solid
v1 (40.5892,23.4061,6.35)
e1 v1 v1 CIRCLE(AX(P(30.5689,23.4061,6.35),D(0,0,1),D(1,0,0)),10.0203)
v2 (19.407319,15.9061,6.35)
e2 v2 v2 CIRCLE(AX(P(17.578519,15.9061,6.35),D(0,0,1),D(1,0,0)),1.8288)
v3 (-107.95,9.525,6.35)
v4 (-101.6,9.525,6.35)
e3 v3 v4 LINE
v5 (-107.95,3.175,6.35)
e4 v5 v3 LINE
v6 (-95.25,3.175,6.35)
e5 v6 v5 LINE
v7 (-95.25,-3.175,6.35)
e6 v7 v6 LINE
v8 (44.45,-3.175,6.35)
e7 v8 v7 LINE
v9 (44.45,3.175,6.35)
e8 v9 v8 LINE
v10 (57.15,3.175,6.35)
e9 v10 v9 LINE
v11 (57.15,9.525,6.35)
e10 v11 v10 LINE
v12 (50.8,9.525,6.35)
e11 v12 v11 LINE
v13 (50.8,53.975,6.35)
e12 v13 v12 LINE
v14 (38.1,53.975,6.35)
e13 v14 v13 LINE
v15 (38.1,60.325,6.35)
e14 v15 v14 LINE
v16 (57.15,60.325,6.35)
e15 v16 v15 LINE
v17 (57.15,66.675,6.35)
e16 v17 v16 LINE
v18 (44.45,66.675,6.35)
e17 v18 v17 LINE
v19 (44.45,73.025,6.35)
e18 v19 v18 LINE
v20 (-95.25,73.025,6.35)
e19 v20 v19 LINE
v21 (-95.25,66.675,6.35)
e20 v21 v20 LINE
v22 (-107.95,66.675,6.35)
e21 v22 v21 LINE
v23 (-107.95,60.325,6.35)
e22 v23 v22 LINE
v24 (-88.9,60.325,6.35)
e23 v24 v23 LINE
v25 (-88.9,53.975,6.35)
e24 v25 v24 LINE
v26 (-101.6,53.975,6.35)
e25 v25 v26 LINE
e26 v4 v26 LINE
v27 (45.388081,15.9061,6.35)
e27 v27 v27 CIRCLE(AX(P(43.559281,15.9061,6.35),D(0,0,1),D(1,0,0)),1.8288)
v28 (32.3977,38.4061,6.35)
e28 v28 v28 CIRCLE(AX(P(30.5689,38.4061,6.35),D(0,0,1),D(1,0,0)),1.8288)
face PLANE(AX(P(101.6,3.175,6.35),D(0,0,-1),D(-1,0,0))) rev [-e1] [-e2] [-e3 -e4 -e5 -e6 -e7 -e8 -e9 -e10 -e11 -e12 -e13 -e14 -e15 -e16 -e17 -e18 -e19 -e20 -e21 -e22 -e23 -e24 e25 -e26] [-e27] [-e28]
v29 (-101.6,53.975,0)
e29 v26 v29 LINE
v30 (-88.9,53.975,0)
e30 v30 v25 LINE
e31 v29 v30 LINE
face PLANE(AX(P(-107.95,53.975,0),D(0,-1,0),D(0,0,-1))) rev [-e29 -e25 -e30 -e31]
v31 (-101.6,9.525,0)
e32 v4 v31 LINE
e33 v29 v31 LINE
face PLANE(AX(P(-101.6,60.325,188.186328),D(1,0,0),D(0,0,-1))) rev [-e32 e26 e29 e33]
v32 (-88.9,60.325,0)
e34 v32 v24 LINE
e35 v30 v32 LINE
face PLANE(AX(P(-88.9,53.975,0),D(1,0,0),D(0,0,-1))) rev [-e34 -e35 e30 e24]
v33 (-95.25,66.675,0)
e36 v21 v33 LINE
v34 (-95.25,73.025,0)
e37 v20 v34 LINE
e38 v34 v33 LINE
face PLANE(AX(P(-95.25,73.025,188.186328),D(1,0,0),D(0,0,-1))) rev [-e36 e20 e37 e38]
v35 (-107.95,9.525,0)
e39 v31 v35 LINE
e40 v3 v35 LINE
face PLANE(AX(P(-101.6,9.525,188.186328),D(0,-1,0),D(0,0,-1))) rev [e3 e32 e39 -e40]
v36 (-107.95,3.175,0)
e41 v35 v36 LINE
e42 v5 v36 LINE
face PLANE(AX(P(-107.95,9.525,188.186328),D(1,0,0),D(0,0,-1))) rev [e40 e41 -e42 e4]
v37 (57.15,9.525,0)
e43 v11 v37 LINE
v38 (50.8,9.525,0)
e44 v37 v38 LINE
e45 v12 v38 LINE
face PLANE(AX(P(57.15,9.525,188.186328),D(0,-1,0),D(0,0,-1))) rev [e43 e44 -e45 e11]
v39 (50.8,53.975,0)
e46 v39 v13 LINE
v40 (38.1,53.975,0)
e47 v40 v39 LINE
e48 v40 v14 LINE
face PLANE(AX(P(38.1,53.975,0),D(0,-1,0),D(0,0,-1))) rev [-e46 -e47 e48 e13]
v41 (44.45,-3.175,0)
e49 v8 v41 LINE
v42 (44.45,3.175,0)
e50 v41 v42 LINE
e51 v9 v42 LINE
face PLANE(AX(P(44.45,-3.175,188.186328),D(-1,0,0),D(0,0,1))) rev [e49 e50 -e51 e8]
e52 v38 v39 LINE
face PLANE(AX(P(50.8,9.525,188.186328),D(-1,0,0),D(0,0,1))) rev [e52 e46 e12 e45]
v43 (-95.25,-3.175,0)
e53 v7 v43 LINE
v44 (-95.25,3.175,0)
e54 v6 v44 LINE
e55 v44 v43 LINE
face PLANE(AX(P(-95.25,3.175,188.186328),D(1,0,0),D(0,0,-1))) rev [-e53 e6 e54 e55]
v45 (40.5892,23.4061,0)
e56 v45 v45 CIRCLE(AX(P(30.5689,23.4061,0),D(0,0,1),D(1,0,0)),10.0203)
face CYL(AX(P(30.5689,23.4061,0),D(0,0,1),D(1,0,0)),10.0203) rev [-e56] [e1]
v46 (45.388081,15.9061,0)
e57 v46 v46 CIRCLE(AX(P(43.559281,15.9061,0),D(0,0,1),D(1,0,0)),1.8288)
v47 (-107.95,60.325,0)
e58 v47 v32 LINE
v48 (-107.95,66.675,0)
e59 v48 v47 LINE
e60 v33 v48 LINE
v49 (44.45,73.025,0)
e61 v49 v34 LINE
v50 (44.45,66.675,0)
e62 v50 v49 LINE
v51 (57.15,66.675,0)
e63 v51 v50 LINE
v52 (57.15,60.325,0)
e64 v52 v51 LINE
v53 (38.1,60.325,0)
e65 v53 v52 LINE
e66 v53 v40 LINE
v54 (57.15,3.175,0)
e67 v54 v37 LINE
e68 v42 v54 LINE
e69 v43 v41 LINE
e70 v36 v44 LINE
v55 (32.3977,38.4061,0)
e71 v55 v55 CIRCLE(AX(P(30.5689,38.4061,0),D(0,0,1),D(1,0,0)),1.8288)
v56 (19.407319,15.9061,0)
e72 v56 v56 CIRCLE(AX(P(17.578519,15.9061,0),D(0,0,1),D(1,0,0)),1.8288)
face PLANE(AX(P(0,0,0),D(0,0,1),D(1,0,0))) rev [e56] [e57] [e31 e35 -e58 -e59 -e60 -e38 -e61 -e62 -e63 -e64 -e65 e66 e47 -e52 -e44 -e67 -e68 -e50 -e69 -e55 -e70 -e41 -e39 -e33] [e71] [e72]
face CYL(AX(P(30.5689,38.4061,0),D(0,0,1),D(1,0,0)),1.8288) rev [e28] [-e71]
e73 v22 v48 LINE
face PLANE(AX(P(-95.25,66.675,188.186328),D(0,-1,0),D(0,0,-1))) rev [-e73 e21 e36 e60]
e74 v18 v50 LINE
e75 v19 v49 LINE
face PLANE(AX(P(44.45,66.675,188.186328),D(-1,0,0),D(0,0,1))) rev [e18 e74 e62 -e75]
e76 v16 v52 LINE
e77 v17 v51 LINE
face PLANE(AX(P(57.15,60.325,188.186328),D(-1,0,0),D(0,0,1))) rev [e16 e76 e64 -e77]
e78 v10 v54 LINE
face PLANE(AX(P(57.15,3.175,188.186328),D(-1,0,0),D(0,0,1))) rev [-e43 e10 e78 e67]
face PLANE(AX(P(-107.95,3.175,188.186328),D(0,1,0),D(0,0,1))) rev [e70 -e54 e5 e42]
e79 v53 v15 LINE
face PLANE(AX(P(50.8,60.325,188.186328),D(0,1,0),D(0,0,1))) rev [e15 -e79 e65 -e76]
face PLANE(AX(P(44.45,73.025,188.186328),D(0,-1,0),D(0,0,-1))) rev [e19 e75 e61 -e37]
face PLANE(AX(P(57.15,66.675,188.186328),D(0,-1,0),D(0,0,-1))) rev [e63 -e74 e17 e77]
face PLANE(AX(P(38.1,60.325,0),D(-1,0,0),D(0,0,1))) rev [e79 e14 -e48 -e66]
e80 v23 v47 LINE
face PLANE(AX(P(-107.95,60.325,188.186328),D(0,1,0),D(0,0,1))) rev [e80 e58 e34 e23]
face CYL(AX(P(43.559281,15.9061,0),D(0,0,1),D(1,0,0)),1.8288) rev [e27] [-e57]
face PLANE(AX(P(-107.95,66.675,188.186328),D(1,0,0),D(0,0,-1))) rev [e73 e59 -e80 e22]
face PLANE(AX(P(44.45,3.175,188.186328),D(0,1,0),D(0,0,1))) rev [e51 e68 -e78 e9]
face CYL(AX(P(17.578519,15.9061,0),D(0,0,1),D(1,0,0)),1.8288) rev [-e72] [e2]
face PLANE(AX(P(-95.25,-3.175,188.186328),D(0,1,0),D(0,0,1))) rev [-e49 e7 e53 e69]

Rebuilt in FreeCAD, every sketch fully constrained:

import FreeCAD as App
import Part
import Sketcher
from FreeCAD import Vector
Q = App.Units.Quantity

doc = App.newDocument("Part")
body = doc.addObject("PartDesign::Body", "Body")

sketch1 = doc.addObject("Sketcher::SketchObject", "Sketch")
body.addObject(sketch1)
sketch1.AttachmentSupport = (doc.XY_Plane, [""])
sketch1.MapMode = "FlatFace"
sketch1.addGeometry([
    Part.LineSegment(Vector(-95, -3, 0), Vector(44, -3, 0)),
    Part.LineSegment(Vector(44, -3, 0), Vector(44, 3, 0)),
    Part.LineSegment(Vector(44, 3, 0), Vector(57, 3, 0)),
    Part.LineSegment(Vector(57, 3, 0), Vector(57, 10, 0)),
    Part.LineSegment(Vector(57, 10, 0), Vector(51, 10, 0)),
    Part.LineSegment(Vector(51, 10, 0), Vector(51, 60, 0)),
    Part.LineSegment(Vector(51, 60, 0), Vector(57, 60, 0)),
    Part.LineSegment(Vector(57, 60, 0), Vector(57, 67, 0)),
    Part.LineSegment(Vector(57, 67, 0), Vector(44, 67, 0)),
    Part.LineSegment(Vector(44, 67, 0), Vector(44, 73, 0)),
    Part.LineSegment(Vector(44, 73, 0), Vector(-95, 73, 0)),
    Part.LineSegment(Vector(-95, 73, 0), Vector(-95, 67, 0)),
    Part.LineSegment(Vector(-95, 67, 0), Vector(-108, 67, 0)),
    Part.LineSegment(Vector(-108, 67, 0), Vector(-108, 60, 0)),
    Part.LineSegment(Vector(-108, 60, 0), Vector(-102, 60, 0)),
    Part.LineSegment(Vector(-102, 60, 0), Vector(-102, 10, 0)),
    Part.LineSegment(Vector(-102, 10, 0), Vector(-108, 10, 0)),
    Part.LineSegment(Vector(-108, 10, 0), Vector(-108, 3, 0)),
    Part.LineSegment(Vector(-108, 3, 0), Vector(-95, 3, 0)),
    Part.LineSegment(Vector(-95, 3, 0), Vector(-95, -3, 0)),
], False)
sketch1.addConstraint([
    Sketcher.Constraint("Coincident", 0, 2, 1, 1),
    Sketcher.Constraint("Coincident", 1, 2, 2, 1),
    Sketcher.Constraint("Coincident", 2, 2, 3, 1),
    Sketcher.Constraint("Coincident", 3, 2, 4, 1),
    Sketcher.Constraint("Coincident", 4, 2, 5, 1),
    Sketcher.Constraint("Coincident", 5, 2, 6, 1),
    Sketcher.Constraint("Coincident", 6, 2, 7, 1),
    Sketcher.Constraint("Coincident", 7, 2, 8, 1),
    Sketcher.Constraint("Coincident", 8, 2, 9, 1),
    Sketcher.Constraint("Coincident", 9, 2, 10, 1),
    Sketcher.Constraint("Coincident", 10, 2, 11, 1),
    Sketcher.Constraint("Coincident", 11, 2, 12, 1),
    Sketcher.Constraint("Coincident", 12, 2, 13, 1),
    Sketcher.Constraint("Coincident", 13, 2, 14, 1),
    Sketcher.Constraint("Coincident", 14, 2, 15, 1),
    Sketcher.Constraint("Coincident", 15, 2, 16, 1),
    Sketcher.Constraint("Coincident", 16, 2, 17, 1),
    Sketcher.Constraint("Coincident", 17, 2, 18, 1),
    Sketcher.Constraint("Coincident", 18, 2, 19, 1),
    Sketcher.Constraint("Coincident", 19, 2, 0, 1),
    Sketcher.Constraint("Horizontal", 0),
    Sketcher.Constraint("Vertical", 1),
    Sketcher.Constraint("Horizontal", 2),
    Sketcher.Constraint("Vertical", 3),
    Sketcher.Constraint("Horizontal", 4),
    Sketcher.Constraint("Vertical", 5),
    Sketcher.Constraint("Horizontal", 6),
    Sketcher.Constraint("Vertical", 7),
    Sketcher.Constraint("Horizontal", 8),
    Sketcher.Constraint("Vertical", 9),
    Sketcher.Constraint("Horizontal", 10),
    Sketcher.Constraint("Vertical", 11),
    Sketcher.Constraint("Horizontal", 12),
    Sketcher.Constraint("Vertical", 13),
    Sketcher.Constraint("Horizontal", 14),
    Sketcher.Constraint("Vertical", 15),
    Sketcher.Constraint("Horizontal", 16),
    Sketcher.Constraint("Vertical", 17),
    Sketcher.Constraint("Horizontal", 18),
    Sketcher.Constraint("Vertical", 19),
    Sketcher.Constraint("Horizontal", 8, 2, 11, 2),
    Sketcher.Constraint("Horizontal", 6, 2, 13, 2),
    Sketcher.Constraint("Horizontal", 4, 2, 15, 2),
    Sketcher.Constraint("Horizontal", 2, 2, 17, 2),
    Sketcher.Constraint("Vertical", 3, 2, 6, 2),
    Sketcher.Constraint("Vertical", 1, 2, 8, 2),
    Sketcher.Constraint("Vertical", 13, 2, 16, 2),
    Sketcher.Constraint("Vertical", 11, 2, 18, 2),
    Sketcher.Constraint("Equal", 8, 12),
    Sketcher.Constraint("Equal", 6, 14),
    Sketcher.Constraint("Equal", 16, 1),
    Sketcher.Constraint("Equal", 1, 3),
    Sketcher.Constraint("Equal", 3, 7),
    Sketcher.Constraint("Equal", 7, 9),
    Sketcher.Constraint("DistanceY", 5, 1, 5, 2, Q("2 in")),
    Sketcher.Constraint("DistanceX", 0, 1, 0, 2, Q("5.5 in")),
    Sketcher.Constraint("DistanceX", 2, 1, 2, 2, Q("0.5 in")),
    Sketcher.Constraint("DistanceX", -1, 1, 4, 2, Q("2 in")),
    Sketcher.Constraint("DistanceX", 14, 2, -1, 1, Q("4 in")),
    Sketcher.Constraint("DistanceY", 0, 2, -1, 1, Q("0.125 in")),
])
pad1 = doc.addObject("PartDesign::Pad", "Pad")
body.addObject(pad1)
pad1.Profile = sketch1
pad1.Length = Q("0.25 in")

sketch2 = doc.addObject("Sketcher::SketchObject", "Sketch001")
body.addObject(sketch2)
sketch2.AttachmentSupport = (doc.XY_Plane, [""])
sketch2.MapMode = "FlatFace"
sketch2.AttachmentOffset = App.Placement(Vector(0, 0, 0.25 * 25.4), App.Rotation())
sketch2.addGeometry([
    Part.Circle(Vector(30.6, 23.4, 0), Vector(0, 0, 1), 10),
    Part.Circle(Vector(30.6, 38.4, 0), Vector(0, 0, 1), 1.8),
    Part.Circle(Vector(17.6, 15.9, 0), Vector(0, 0, 1), 1.8),
    Part.Circle(Vector(43.6, 15.9, 0), Vector(0, 0, 1), 1.8),
    Part.LineSegment(Vector(38.1, 60.3, 0), Vector(38.1, 54, 0)),
    Part.LineSegment(Vector(38.1, 54, 0), Vector(57.1, 54, 0)),
    Part.LineSegment(Vector(57.1, 54, 0), Vector(57.1, 60.3, 0)),
    Part.LineSegment(Vector(57.1, 60.3, 0), Vector(38.1, 60.3, 0)),
    Part.LineSegment(Vector(-108, 60.3, 0), Vector(-108, 54, 0)),
    Part.LineSegment(Vector(-108, 54, 0), Vector(-88.9, 54, 0)),
    Part.LineSegment(Vector(-88.9, 54, 0), Vector(-88.9, 60.3, 0)),
    Part.LineSegment(Vector(-88.9, 60.3, 0), Vector(-108, 60.3, 0)),
], False)
sketch2.addConstraint([
    Sketcher.Constraint("Coincident", 4, 2, 5, 1),
    Sketcher.Constraint("Coincident", 5, 2, 6, 1),
    Sketcher.Constraint("Coincident", 6, 2, 7, 1),
    Sketcher.Constraint("Coincident", 7, 2, 4, 1),
    Sketcher.Constraint("Coincident", 8, 2, 9, 1),
    Sketcher.Constraint("Coincident", 9, 2, 10, 1),
    Sketcher.Constraint("Coincident", 10, 2, 11, 1),
    Sketcher.Constraint("Coincident", 11, 2, 8, 1),
    Sketcher.Constraint("Vertical", 4),
    Sketcher.Constraint("Horizontal", 5),
    Sketcher.Constraint("Vertical", 6),
    Sketcher.Constraint("Horizontal", 7),
    Sketcher.Constraint("Vertical", 8),
    Sketcher.Constraint("Horizontal", 9),
    Sketcher.Constraint("Vertical", 10),
    Sketcher.Constraint("Horizontal", 11),
    Sketcher.Constraint("Equal", 1, 2),
    Sketcher.Constraint("Equal", 2, 3),
    Sketcher.Constraint("Horizontal", 2, 3, 3, 3),
    Sketcher.Constraint("Horizontal", 5, 2, 8, 2),
    Sketcher.Constraint("Horizontal", 7, 2, 10, 2),
    Sketcher.Constraint("Vertical", 0, 3, 1, 3),
    Sketcher.Constraint("Equal", 7, 9),
    Sketcher.Constraint("Diameter", 0, Q("0.789 in")),
    Sketcher.Constraint("Diameter", 1, Q("0.144 in")),
    Sketcher.Constraint("DistanceX", 9, 2, 4, 2, Q("5 in")),
    Sketcher.Constraint("DistanceX", 5, 1, 5, 2, Q("0.75 in")),
    Sketcher.Constraint("DistanceY", 4, 2, 4, 1, Q("0.25 in")),
    Sketcher.Constraint("DistanceX", -1, 1, 4, 2, Q("1.5 in")),
    Sketcher.Constraint("DistanceY", -1, 1, 4, 2, Q("2.125 in")),
    Sketcher.Constraint("DistanceX", -1, 1, 0, 3, Q("1.2035 in")),
    Sketcher.Constraint("DistanceY", -1, 1, 0, 3, Q("0.9215 in")),
    Sketcher.Constraint("DistanceY", -1, 1, 1, 3, Q("38.4061 mm")),
    Sketcher.Constraint("DistanceY", -1, 1, 2, 3, Q("15.9061 mm")),
    Sketcher.Constraint("DistanceX", -1, 1, 2, 3, Q("17.578519 mm")),
    Sketcher.Constraint("DistanceX", -1, 1, 3, 3, Q("43.559281 mm")),
])
pocket1 = doc.addObject("PartDesign::Pocket", "Pocket")
body.addObject(pocket1)
pocket1.Profile = sketch2
pocket1.Type = "ThroughAll"

doc.recompute()
